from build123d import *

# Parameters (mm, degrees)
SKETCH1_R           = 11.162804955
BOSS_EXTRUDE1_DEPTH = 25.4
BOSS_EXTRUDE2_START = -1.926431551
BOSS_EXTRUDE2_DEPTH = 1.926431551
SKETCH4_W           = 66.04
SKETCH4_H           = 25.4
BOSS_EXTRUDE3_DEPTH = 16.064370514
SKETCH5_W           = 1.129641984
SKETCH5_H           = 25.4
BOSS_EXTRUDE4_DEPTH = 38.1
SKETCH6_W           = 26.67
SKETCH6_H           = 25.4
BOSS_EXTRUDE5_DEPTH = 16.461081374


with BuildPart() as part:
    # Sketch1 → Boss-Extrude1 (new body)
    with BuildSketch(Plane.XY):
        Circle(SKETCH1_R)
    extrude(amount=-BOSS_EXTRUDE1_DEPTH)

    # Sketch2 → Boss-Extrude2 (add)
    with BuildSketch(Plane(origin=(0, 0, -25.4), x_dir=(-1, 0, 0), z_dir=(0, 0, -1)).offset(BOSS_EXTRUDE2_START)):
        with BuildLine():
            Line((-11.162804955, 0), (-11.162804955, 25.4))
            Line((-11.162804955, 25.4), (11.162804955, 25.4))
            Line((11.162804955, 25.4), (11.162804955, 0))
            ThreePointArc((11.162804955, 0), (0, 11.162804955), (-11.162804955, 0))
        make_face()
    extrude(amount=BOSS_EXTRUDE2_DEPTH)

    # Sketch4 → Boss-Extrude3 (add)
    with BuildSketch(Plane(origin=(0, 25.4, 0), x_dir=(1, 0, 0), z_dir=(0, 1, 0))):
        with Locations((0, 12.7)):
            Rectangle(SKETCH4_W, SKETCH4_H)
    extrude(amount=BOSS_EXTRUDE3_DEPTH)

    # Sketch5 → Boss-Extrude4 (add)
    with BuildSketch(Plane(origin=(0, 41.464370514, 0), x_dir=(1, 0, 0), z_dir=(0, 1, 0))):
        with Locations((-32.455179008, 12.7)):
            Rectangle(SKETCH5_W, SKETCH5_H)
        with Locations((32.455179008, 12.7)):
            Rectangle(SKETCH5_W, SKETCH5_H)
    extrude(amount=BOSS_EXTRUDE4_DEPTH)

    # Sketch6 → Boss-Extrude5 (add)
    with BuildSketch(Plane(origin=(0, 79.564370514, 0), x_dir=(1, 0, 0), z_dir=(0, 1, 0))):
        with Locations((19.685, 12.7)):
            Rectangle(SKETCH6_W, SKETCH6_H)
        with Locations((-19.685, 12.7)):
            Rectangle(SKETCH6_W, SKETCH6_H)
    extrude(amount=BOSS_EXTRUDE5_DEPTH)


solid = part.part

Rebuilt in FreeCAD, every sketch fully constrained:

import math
import FreeCAD as App
import Part
import Sketcher
from FreeCAD import Vector
Q = App.Units.Quantity

doc = App.newDocument("Part")
body = doc.addObject("PartDesign::Body", "Body")

sketch1 = body.newObject("Sketcher::SketchObject", "Sketch")
sketch1.AttachmentSupport = (doc.getObject("XY_Plane"), [""])
sketch1.MapMode = "FlatFace"
sketch1.addGeometry(Part.Circle(Vector(0, 0, 0), Vector(0, 0, 1), 11), False)
sketch1.addConstraint([
    Sketcher.Constraint("Coincident", 0, 3, -1, 1),
    Sketcher.Constraint("Diameter", 0, 22.32561),
])
pad1 = body.newObject("PartDesign::Pad", "Pad")
pad1.Profile = sketch1
pad1.Length = Q("1 in")
pad1.Reversed = True

sketch2 = body.newObject("Sketcher::SketchObject", "Sketch001")
sketch2.AttachmentSupport = (doc.getObject("XY_Plane"), [""])
sketch2.MapMode = "FlatFace"
sketch2.AttachmentOffset = App.Placement(Vector(0, 0, -23.473568), App.Rotation())
sketch2.addGeometry([
    Part.LineSegment(Vector(11, 25, 0), Vector(11, 0, 0)),
    Part.ArcOfCircle(Part.Circle(Vector(0, 0, 0), Vector(0, 0, 1), 11), math.radians(0), math.radians(180)),
    Part.LineSegment(Vector(-11, 0, 0), Vector(-11, 25, 0)),
    Part.LineSegment(Vector(-11, 25, 0), Vector(11, 25, 0)),
], False)
sketch2.addConstraint([
    Sketcher.Constraint("Tangent", 0, 2, 1, 1),
    Sketcher.Constraint("Tangent", 1, 2, 2, 1),
    Sketcher.Constraint("Coincident", 2, 2, 3, 1),
    Sketcher.Constraint("Coincident", 3, 2, 0, 1),
    Sketcher.Constraint("Vertical", 0),
    Sketcher.Constraint("Vertical", 2),
    Sketcher.Constraint("Horizontal", 3),
    Sketcher.Constraint("Coincident", 1, 3, -1, 1),
    Sketcher.Constraint("DistanceY", 0, 2, 0, 1, Q("1 in")),
    Sketcher.Constraint("Radius", 1, 11.162805),
])
pad2 = body.newObject("PartDesign::Pad", "Pad001")
pad2.Profile = sketch2
pad2.Length = 1.926432
pad2.Reversed = True

sketch3 = body.newObject("Sketcher::SketchObject", "Sketch002")
sketch3.AttachmentSupport = (doc.getObject("XZ_Plane"), [""])
sketch3.MapMode = "FlatFace"
sketch3.AttachmentOffset = App.Placement(Vector(0, 0, -1 * 25.4), App.Rotation())
sketch3.addGeometry([
    Part.LineSegment(Vector(-33, -25, 0), Vector(-33, 0, 0)),
    Part.LineSegment(Vector(-33, 0, 0), Vector(33, 0, 0)),
    Part.LineSegment(Vector(33, 0, 0), Vector(33, -25, 0)),
    Part.LineSegment(Vector(33, -25, 0), Vector(-33, -25, 0)),
], False)
sketch3.addConstraint([
    Sketcher.Constraint("Coincident", 0, 2, 1, 1),
    Sketcher.Constraint("Coincident", 1, 2, 2, 1),
    Sketcher.Constraint("Coincident", 2, 2, 3, 1),
    Sketcher.Constraint("Coincident", 3, 2, 0, 1),
    Sketcher.Constraint("Vertical", 0),
    Sketcher.Constraint("Horizontal", 1),
    Sketcher.Constraint("Vertical", 2),
    Sketcher.Constraint("Horizontal", 3),
    Sketcher.Constraint("Symmetric", 0, 2, 1, 2, -1, 1),
    Sketcher.Constraint("DistanceY", 0, 1, 0, 2, Q("1 in")),
    Sketcher.Constraint("DistanceX", 1, 1, 1, 2, Q("2.6 in")),
])
pad3 = body.newObject("PartDesign::Pad", "Pad002")
pad3.Profile = sketch3
pad3.Length = 16.064371
pad3.Reversed = True

sketch4 = body.newObject("Sketcher::SketchObject", "Sketch003")
sketch4.AttachmentSupport = (doc.getObject("XZ_Plane"), [""])
sketch4.MapMode = "FlatFace"
sketch4.AttachmentOffset = App.Placement(Vector(0, 0, -41.464371), App.Rotation())
sketch4.addGeometry([
    Part.LineSegment(Vector(-33, -25.4, 0), Vector(-33, 0, 0)),
    Part.LineSegment(Vector(-33, 0, 0), Vector(-31.9, 0, 0)),
    Part.LineSegment(Vector(-31.9, 0, 0), Vector(-31.9, -25.4, 0)),
    Part.LineSegment(Vector(-31.9, -25.4, 0), Vector(-33, -25.4, 0)),
    Part.LineSegment(Vector(31.9, -25.4, 0), Vector(31.9, 0, 0)),
    Part.LineSegment(Vector(31.9, 0, 0), Vector(33, 0, 0)),
    Part.LineSegment(Vector(33, 0, 0), Vector(33, -25.4, 0)),
    Part.LineSegment(Vector(33, -25.4, 0), Vector(31.9, -25.4, 0)),
], False)
sketch4.addConstraint([
    Sketcher.Constraint("Coincident", 0, 2, 1, 1),
    Sketcher.Constraint("Coincident", 1, 2, 2, 1),
    Sketcher.Constraint("Coincident", 2, 2, 3, 1),
    Sketcher.Constraint("Coincident", 3, 2, 0, 1),
    Sketcher.Constraint("Coincident", 4, 2, 5, 1),
    Sketcher.Constraint("Coincident", 5, 2, 6, 1),
    Sketcher.Constraint("Coincident", 6, 2, 7, 1),
    Sketcher.Constraint("Coincident", 7, 2, 4, 1),
    Sketcher.Constraint("Vertical", 0),
    Sketcher.Constraint("Horizontal", 1),
    Sketcher.Constraint("Vertical", 2),
    Sketcher.Constraint("Horizontal", 3),
    Sketcher.Constraint("Vertical", 4),
    Sketcher.Constraint("Horizontal", 5),
    Sketcher.Constraint("Vertical", 6),
    Sketcher.Constraint("Horizontal", 7),
    Sketcher.Constraint("Symmetric", 1, 2, 4, 2, -1, 1),
    Sketcher.Constraint("Symmetric", 0, 2, 5, 2, -2),
    Sketcher.Constraint("Horizontal", 3, 2, 6, 2),
    Sketcher.Constraint("DistanceY", 0, 1, 0, 2, Q("1 in")),
    Sketcher.Constraint("DistanceX", 0, 2, -1, 1, Q("1.3 in")),
    Sketcher.Constraint("DistanceX", 1, 1, 1, 2, 1.129642),
])
pad4 = body.newObject("PartDesign::Pad", "Pad003")
pad4.Profile = sketch4
pad4.Length = Q("1.5 in")
pad4.Reversed = True

sketch5 = body.newObject("Sketcher::SketchObject", "Sketch004")
sketch5.AttachmentSupport = (doc.getObject("XZ_Plane"), [""])
sketch5.MapMode = "FlatFace"
sketch5.AttachmentOffset = App.Placement(Vector(0, 0, -79.564371), App.Rotation())
sketch5.addGeometry([
    Part.LineSegment(Vector(6, -25, 0), Vector(6, 0, 0)),
    Part.LineSegment(Vector(6, 0, 0), Vector(33, 0, 0)),
    Part.LineSegment(Vector(33, 0, 0), Vector(33, -25, 0)),
    Part.LineSegment(Vector(33, -25, 0), Vector(6, -25, 0)),
    Part.LineSegment(Vector(-33, -25, 0), Vector(-33, 0, 0)),
    Part.LineSegment(Vector(-33, 0, 0), Vector(-6, 0, 0)),
    Part.LineSegment(Vector(-6, 0, 0), Vector(-6, -25, 0)),
    Part.LineSegment(Vector(-6, -25, 0), Vector(-33, -25, 0)),
], False)
sketch5.addConstraint([
    Sketcher.Constraint("Coincident", 0, 2, 1, 1),
    Sketcher.Constraint("Coincident", 1, 2, 2, 1),
    Sketcher.Constraint("Coincident", 2, 2, 3, 1),
    Sketcher.Constraint("Coincident", 3, 2, 0, 1),
    Sketcher.Constraint("Coincident", 4, 2, 5, 1),
    Sketcher.Constraint("Coincident", 5, 2, 6, 1),
    Sketcher.Constraint("Coincident", 6, 2, 7, 1),
    Sketcher.Constraint("Coincident", 7, 2, 4, 1),
    Sketcher.Constraint("Vertical", 0),
    Sketcher.Constraint("Horizontal", 1),
    Sketcher.Constraint("Vertical", 2),
    Sketcher.Constraint("Horizontal", 3),
    Sketcher.Constraint("Vertical", 4),
    Sketcher.Constraint("Horizontal", 5),
    Sketcher.Constraint("Vertical", 6),
    Sketcher.Constraint("Horizontal", 7),
    Sketcher.Constraint("Symmetric", 1, 2, 4, 2, -1, 1),
    Sketcher.Constraint("Symmetric", 0, 2, 5, 2, -2),
    Sketcher.Constraint("Horizontal", 3, 2, 6, 2),
    Sketcher.Constraint("DistanceY", 0, 1, 0, 2, Q("1 in")),
    Sketcher.Constraint("DistanceX", 1, 1, 1, 2, Q("1.05 in")),
    Sketcher.Constraint("DistanceX", -1, 1, 1, 2, Q("1.3 in")),
])
pad5 = body.newObject("PartDesign::Pad", "Pad004")
pad5.Profile = sketch5
pad5.Length = 16.461081
pad5.Reversed = True

doc.recompute()
